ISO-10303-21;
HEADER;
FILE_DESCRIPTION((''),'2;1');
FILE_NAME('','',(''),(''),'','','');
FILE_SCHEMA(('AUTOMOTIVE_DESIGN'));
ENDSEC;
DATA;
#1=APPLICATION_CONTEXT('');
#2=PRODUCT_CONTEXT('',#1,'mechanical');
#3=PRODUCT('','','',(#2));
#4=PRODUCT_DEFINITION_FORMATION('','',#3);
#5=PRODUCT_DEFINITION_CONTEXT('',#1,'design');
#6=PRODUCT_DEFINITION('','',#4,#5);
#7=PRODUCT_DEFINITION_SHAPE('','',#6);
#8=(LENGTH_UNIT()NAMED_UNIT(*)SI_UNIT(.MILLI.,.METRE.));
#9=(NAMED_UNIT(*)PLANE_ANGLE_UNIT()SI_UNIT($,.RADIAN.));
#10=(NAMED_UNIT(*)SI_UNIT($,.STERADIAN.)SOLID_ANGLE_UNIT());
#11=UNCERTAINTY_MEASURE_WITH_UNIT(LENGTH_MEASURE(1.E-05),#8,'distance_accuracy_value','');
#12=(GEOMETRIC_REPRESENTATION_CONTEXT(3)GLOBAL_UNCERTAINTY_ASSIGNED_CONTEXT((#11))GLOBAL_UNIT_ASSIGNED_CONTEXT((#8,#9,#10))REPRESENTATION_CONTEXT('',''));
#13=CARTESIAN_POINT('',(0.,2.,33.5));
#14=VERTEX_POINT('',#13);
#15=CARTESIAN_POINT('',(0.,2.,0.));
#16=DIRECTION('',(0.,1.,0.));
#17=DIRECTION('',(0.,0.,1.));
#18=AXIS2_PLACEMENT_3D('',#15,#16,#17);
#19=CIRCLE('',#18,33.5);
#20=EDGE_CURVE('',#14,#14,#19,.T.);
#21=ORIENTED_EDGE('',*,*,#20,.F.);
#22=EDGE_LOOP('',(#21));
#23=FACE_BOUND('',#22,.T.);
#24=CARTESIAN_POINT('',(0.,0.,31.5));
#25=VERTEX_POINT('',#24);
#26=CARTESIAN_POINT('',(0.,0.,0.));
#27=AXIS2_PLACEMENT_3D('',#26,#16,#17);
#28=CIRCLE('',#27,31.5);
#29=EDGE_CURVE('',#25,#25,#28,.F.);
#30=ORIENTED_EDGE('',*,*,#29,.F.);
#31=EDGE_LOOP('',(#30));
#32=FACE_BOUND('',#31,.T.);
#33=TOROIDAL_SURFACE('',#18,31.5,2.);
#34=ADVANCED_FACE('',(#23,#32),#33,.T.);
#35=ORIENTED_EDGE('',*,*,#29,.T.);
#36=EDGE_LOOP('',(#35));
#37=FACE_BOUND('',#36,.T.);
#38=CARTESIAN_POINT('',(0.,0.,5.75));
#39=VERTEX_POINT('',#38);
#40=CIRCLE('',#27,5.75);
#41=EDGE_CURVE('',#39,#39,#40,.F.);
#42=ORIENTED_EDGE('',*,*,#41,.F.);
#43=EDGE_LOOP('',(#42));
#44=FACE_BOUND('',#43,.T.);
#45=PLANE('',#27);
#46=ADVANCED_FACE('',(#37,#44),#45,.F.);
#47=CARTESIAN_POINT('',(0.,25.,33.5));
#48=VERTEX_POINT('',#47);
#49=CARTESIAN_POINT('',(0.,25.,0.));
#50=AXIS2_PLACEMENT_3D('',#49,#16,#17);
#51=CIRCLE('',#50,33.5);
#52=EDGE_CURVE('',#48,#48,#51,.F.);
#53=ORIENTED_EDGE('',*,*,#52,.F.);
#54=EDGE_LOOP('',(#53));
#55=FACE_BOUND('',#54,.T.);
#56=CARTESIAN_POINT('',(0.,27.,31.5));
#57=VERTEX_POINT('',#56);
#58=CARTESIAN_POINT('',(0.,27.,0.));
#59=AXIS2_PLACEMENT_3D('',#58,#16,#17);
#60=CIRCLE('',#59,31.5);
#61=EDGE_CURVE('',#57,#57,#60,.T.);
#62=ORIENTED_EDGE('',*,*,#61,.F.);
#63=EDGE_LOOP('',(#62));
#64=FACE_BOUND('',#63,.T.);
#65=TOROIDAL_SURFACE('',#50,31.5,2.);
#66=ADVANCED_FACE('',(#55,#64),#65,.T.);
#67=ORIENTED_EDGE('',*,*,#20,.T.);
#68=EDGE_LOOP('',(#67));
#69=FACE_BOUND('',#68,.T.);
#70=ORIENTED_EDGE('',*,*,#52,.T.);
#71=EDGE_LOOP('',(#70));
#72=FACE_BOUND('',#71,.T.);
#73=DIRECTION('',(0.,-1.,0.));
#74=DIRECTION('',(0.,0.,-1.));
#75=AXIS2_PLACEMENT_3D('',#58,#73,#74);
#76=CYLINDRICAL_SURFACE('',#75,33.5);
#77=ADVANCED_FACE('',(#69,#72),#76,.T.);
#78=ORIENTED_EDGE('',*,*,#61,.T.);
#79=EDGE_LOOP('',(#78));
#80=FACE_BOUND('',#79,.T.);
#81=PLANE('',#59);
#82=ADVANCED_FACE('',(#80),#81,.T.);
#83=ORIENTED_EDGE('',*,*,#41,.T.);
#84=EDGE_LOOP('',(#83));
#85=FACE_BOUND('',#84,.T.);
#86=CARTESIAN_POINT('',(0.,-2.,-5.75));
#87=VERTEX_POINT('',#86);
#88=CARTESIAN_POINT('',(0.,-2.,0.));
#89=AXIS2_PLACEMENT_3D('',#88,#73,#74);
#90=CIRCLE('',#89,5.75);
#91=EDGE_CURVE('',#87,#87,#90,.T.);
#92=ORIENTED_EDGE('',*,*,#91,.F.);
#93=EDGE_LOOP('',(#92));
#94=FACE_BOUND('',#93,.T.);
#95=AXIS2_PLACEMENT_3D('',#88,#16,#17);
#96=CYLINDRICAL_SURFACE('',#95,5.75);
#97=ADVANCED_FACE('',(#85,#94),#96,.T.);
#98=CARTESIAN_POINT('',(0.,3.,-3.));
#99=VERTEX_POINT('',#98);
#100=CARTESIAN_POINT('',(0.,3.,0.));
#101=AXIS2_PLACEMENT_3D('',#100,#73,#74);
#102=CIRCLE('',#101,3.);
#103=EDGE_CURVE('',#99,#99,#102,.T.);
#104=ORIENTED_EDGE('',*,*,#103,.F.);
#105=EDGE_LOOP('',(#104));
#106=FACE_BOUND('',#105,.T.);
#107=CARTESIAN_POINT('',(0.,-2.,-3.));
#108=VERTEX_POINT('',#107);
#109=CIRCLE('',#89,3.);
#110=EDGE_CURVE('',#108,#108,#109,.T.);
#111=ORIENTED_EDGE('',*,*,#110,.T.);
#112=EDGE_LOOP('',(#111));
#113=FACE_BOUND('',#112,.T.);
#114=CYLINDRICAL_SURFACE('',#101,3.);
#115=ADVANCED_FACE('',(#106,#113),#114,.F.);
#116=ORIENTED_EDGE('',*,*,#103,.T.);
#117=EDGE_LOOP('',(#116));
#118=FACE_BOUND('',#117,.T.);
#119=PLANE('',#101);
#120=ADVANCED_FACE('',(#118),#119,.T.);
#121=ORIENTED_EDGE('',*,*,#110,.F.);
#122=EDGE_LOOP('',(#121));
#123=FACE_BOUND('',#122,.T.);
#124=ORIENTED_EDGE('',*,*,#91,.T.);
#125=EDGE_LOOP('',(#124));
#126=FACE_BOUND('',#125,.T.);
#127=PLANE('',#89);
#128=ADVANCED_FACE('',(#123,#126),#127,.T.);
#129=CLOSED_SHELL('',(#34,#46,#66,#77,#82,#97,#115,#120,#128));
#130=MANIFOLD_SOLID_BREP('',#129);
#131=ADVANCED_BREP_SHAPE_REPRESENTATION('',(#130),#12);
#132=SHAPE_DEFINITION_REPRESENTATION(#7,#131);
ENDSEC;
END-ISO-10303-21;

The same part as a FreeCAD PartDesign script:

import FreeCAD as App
import Part
import Sketcher
from FreeCAD import Vector
Q = App.Units.Quantity


def edges_at(feature, points):
    """Names of the edges that pass closest to the given points."""
    edges = feature.Shape.Edges
    near = lambda p: min(range(len(edges)), key=lambda i: edges[i].distToShape(Part.Vertex(*p))[0])
    return sorted({f"Edge{near(p) + 1}" for p in points})

doc = App.newDocument("Part")
body = doc.addObject("PartDesign::Body", "Body")

# Sketch on XZ plane
sketch1 = doc.addObject("Sketcher::SketchObject", "Sketch")
body.addObject(sketch1)
sketch1.AttachmentSupport = (doc.XZ_Plane, [""])
sketch1.MapMode = "FlatFace"
sketch1.addGeometry(Part.Circle(Vector(0, 0, 0), Vector(0, 0, 1), 34), False)
sketch1.addConstraint([
    Sketcher.Constraint("Coincident", 0, 3, -1, 1),
    Sketcher.Constraint("Diameter", 0, Q("67 mm")),
])
pad1 = doc.addObject("PartDesign::Pad", "Pad")
body.addObject(pad1)
pad1.Profile = sketch1
pad1.Length = 27
pad1.Reversed = True
doc.recompute()

fillet = doc.addObject("PartDesign::Fillet", "Fillet")
body.addObject(fillet)
fillet.Base = (pad1, edges_at(pad1, [(0, 0, -33.5), (0, 27, -33.5)]))
fillet.Radius = 2

# Sketch on XZ plane
sketch2 = doc.addObject("Sketcher::SketchObject", "Sketch001")
body.addObject(sketch2)
sketch2.AttachmentSupport = (doc.XZ_Plane, [""])
sketch2.MapMode = "FlatFace"
sketch2.addGeometry(Part.Circle(Vector(0, 0, 0), Vector(0, 0, 1), 6), False)
sketch2.addConstraint([
    Sketcher.Constraint("Coincident", 0, 3, -1, 1),
    Sketcher.Constraint("Diameter", 0, Q("11.5 mm")),
])
pad2 = doc.addObject("PartDesign::Pad", "Pad001")
body.addObject(pad2)
pad2.Profile = sketch2
pad2.Length = 2

# Sketch on XZ plane
sketch3 = doc.addObject("Sketcher::SketchObject", "Sketch002")
body.addObject(sketch3)
sketch3.AttachmentSupport = (doc.XZ_Plane, [""])
sketch3.MapMode = "FlatFace"
sketch3.AttachmentOffset = App.Placement(Vector(0, 0, 2), App.Rotation())
sketch3.addGeometry(Part.Circle(Vector(0, 0, 0), Vector(0, 0, 1), 3), False)
sketch3.addConstraint([
    Sketcher.Constraint("Coincident", 0, 3, -1, 1),
    Sketcher.Constraint("Diameter", 0, Q("6 mm")),
])
pocket1 = doc.addObject("PartDesign::Pocket", "Pocket")
body.addObject(pocket1)
pocket1.Profile = sketch3
pocket1.Length = 5

doc.recompute()
